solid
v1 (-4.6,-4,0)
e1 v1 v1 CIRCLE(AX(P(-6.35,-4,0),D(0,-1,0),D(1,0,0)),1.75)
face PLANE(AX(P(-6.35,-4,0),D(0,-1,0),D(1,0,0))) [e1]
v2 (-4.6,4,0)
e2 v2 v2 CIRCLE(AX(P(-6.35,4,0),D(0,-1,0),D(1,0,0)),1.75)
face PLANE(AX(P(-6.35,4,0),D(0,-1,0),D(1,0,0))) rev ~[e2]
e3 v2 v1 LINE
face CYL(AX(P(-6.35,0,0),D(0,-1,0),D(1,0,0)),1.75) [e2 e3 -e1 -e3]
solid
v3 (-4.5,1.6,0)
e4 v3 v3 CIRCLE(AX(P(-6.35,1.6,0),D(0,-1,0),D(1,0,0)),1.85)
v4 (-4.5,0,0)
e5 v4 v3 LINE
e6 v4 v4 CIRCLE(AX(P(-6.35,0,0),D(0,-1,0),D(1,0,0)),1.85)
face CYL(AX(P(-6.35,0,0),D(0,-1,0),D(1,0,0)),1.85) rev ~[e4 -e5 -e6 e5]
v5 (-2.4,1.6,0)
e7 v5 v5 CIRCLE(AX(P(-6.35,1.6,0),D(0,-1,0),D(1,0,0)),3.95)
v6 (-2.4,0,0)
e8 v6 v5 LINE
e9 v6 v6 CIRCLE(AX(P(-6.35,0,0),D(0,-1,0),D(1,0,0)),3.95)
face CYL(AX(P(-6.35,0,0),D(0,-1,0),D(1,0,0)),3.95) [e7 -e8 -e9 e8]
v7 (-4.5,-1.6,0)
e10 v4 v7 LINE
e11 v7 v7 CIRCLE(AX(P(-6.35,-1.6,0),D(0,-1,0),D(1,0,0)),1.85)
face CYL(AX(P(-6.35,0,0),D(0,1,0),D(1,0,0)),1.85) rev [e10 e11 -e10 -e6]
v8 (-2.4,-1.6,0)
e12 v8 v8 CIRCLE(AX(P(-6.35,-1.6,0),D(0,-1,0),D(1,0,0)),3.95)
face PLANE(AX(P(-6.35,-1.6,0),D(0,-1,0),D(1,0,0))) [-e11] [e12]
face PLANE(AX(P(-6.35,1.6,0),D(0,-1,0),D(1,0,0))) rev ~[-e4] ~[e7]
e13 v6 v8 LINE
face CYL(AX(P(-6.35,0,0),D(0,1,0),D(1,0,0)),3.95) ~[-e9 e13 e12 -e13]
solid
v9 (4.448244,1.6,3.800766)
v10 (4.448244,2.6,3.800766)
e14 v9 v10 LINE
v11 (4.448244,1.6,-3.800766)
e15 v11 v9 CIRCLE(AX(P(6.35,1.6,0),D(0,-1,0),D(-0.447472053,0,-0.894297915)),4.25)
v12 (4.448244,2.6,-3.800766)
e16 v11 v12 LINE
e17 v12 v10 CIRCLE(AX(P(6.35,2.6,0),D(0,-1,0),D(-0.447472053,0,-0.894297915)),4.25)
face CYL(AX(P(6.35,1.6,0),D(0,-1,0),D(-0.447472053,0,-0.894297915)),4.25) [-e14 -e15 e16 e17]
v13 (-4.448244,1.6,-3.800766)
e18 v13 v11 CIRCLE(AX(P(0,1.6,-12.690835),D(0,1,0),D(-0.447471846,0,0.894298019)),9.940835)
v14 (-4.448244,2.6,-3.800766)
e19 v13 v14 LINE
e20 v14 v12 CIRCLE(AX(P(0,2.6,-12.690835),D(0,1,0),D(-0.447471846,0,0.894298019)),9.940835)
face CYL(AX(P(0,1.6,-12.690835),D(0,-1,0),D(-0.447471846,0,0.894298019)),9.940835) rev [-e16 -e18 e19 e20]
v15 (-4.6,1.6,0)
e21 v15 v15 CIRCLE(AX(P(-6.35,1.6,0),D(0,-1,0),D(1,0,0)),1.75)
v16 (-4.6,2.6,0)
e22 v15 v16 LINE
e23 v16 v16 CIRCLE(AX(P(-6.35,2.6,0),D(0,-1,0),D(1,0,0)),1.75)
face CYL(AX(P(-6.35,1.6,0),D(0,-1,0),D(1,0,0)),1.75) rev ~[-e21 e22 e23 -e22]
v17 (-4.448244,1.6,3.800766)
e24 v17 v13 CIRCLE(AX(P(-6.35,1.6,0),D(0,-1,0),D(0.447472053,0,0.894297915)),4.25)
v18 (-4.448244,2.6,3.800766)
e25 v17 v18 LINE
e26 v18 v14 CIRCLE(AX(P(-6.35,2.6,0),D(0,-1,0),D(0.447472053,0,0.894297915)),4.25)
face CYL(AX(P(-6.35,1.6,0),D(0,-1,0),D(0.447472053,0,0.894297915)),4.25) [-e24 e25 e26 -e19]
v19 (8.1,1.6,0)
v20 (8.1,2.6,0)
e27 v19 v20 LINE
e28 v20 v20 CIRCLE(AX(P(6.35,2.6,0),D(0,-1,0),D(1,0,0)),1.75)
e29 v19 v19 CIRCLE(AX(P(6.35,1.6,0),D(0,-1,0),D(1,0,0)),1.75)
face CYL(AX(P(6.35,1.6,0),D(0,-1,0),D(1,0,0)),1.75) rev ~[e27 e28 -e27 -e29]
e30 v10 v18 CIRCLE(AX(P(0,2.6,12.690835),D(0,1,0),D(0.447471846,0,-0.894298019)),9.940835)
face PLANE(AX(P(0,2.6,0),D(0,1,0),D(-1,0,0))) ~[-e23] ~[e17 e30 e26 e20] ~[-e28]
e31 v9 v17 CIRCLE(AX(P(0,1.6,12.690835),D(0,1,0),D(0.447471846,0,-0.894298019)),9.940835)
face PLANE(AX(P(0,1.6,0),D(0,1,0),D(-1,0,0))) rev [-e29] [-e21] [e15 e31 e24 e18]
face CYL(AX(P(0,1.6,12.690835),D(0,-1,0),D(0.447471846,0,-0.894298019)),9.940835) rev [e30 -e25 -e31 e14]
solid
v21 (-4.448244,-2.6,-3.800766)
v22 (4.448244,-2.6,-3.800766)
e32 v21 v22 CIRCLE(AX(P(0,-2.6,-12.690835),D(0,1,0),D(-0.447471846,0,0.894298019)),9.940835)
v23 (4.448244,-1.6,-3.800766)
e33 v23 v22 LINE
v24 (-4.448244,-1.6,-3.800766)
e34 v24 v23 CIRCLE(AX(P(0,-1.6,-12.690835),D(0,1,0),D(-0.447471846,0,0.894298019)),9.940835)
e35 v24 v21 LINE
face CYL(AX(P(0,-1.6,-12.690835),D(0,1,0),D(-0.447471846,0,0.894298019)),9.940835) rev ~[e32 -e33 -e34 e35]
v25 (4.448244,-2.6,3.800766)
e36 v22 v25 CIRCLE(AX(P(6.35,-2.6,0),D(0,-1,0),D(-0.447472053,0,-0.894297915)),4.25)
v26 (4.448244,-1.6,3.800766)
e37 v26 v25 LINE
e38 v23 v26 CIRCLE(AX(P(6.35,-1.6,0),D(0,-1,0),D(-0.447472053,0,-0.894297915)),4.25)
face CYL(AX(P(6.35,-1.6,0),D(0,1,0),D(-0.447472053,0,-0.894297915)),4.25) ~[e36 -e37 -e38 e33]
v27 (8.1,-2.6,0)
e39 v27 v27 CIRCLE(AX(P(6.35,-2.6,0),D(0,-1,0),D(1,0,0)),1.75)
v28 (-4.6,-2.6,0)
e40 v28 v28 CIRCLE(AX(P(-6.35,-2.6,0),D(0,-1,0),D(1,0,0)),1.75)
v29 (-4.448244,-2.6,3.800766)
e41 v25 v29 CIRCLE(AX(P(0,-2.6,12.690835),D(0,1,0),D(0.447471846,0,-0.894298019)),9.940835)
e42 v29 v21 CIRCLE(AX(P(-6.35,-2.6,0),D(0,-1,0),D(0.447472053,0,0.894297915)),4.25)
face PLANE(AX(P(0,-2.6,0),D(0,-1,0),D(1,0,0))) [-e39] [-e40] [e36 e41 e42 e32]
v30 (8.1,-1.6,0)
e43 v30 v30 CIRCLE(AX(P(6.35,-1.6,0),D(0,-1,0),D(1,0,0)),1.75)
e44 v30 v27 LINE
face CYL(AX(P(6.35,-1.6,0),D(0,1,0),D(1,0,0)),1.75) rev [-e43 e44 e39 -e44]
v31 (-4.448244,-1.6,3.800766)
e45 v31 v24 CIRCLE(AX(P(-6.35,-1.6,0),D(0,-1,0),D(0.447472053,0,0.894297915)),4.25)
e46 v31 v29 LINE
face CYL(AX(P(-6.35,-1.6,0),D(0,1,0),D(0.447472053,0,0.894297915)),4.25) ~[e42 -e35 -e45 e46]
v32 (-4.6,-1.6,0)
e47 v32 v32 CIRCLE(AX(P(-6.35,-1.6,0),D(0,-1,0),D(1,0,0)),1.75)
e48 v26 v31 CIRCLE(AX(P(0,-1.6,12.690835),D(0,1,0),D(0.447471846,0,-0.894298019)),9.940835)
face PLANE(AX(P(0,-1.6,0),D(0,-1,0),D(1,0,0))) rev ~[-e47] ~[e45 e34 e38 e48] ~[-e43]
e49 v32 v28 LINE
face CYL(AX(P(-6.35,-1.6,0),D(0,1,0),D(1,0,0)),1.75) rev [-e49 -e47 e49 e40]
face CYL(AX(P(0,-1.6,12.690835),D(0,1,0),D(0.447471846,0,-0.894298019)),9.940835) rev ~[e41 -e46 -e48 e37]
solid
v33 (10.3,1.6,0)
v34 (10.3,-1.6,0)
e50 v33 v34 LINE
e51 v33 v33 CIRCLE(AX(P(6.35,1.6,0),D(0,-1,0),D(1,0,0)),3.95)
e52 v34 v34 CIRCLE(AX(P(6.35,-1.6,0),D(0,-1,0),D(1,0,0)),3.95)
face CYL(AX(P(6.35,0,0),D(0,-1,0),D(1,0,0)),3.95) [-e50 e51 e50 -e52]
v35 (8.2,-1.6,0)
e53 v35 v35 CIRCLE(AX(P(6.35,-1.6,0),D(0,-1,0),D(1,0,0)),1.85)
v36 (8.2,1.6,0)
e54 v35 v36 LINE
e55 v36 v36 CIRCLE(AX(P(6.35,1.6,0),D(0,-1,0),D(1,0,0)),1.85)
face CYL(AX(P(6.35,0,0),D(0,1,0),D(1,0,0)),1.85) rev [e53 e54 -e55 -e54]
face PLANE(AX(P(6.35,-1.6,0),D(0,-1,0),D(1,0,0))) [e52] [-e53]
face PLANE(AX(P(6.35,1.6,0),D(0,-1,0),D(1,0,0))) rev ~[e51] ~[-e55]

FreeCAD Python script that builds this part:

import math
import FreeCAD as App
import Part
import Sketcher
from FreeCAD import Vector
Q = App.Units.Quantity

doc = App.newDocument("Part")
body = doc.addObject("PartDesign::Body", "Body")
body.AllowCompound = True

sketch1 = body.newObject("Sketcher::SketchObject", "Sketch")
sketch1.AttachmentSupport = (doc.getObject("XZ_Plane"), [""])
sketch1.MapMode = "FlatFace"
sketch1.addGeometry([
    Part.Circle(Vector(-6.3, 0, 0), Vector(0, 0, 1), 4),
    Part.Circle(Vector(-6.3, 0, 0), Vector(0, 0, 1), 1.9),
    Part.Circle(Vector(6.3, 0, 0), Vector(0, 0, 1), 4),
    Part.Circle(Vector(6.3, 0, 0), Vector(0, 0, 1), 1.9),
], False)
sketch1.addConstraint([
    Sketcher.Constraint("Coincident", 1, 3, 0, 3),
    Sketcher.Constraint("Coincident", 3, 3, 2, 3),
    Sketcher.Constraint("Equal", 0, 2),
    Sketcher.Constraint("Equal", 1, 3),
    Sketcher.Constraint("Symmetric", 0, 3, 2, 3, -1, 1),
    Sketcher.Constraint("PointOnObject", 0, 3, -1),
    Sketcher.Constraint("Diameter", 0, Q("7.9 mm")),
    Sketcher.Constraint("Diameter", 1, Q("3.7 mm")),
    Sketcher.Constraint("DistanceX", 0, 3, 2, 3, Q("12.7 mm")),
])
pad1 = body.newObject("PartDesign::Pad", "Pad")
pad1.Profile = sketch1
pad1.Length = 3.2
pad1.Midplane = True
body2 = doc.addObject("PartDesign::Body", "Body001")

sketch2 = body2.newObject("Sketcher::SketchObject", "Sketch001")
sketch2.AttachmentSupport = (doc.getObject("XZ_Plane001"), [""])
sketch2.MapMode = "FlatFace"
sketch2.AttachmentOffset = App.Placement(Vector(0, 0, 1.6), App.Rotation())
sketch2.addGeometry([
    Part.ArcOfCircle(Part.Circle(Vector(0, 12.7, 0), Vector(0, 0, 1), 9.9), math.radians(-117), math.radians(-63)),
    Part.ArcOfCircle(Part.Circle(Vector(-6.4, 0, 0), Vector(0, 0, 1), 4.2), math.radians(63), math.radians(297)),
    Part.ArcOfCircle(Part.Circle(Vector(0, -12.7, 0), Vector(0, 0, 1), 9.9), math.radians(63), math.radians(117)),
    Part.ArcOfCircle(Part.Circle(Vector(6.4, 0, 0), Vector(0, 0, 1), 4.2), math.radians(-117), math.radians(117)),
    Part.Circle(Vector(-6.3, 0, 0), Vector(0, 0, 1), 1.8),
    Part.Circle(Vector(6.3, 0, 0), Vector(0, 0, 1), 1.8),
], False)
sketch2.addConstraint([
    Sketcher.Constraint("Tangent", 0, 1, 1, 1),
    Sketcher.Constraint("Tangent", 1, 2, 2, 2),
    Sketcher.Constraint("Tangent", 2, 1, 3, 1),
    Sketcher.Constraint("Tangent", 3, 2, 0, 2),
    Sketcher.Constraint("Coincident", 4, 3, 1, 3),
    Sketcher.Constraint("Coincident", 5, 3, 3, 3),
    Sketcher.Constraint("Equal", 0, 2),
    Sketcher.Constraint("Equal", 1, 3),
    Sketcher.Constraint("Equal", 4, 5),
    Sketcher.Constraint("Symmetric", 0, 3, 2, 3, -1, 1),
    Sketcher.Constraint("PointOnObject", 0, 3, -2),
    Sketcher.Constraint("Diameter", 4, Q("3.5 mm")),
    Sketcher.Constraint("Radius", 1, Q("4.25 mm")),
    Sketcher.Constraint("DistanceX", 1, 3, 3, 3, Q("12.7 mm")),
    Sketcher.Constraint("Radius", 0, Q("9.940835 mm")),
])
pad2 = body2.newObject("PartDesign::Pad", "Pad001")
pad2.Profile = sketch2
pad2.Length = 1
body3 = doc.addObject("PartDesign::Body", "Body002")
doc.recompute()

mirroring = doc.addObject("Part::Mirroring", "Mirroring")
mirroring.Source = body2
mirroring.Base = Vector(0, 0, 0)
mirroring.Normal = Vector(0, -1, 0)
body3.BaseFeature = mirroring
doc.recompute()
body4 = doc.addObject("PartDesign::Body", "Body003")

sketch3 = body4.newObject("Sketcher::SketchObject", "Sketch002")
sketch3.AttachmentSupport = (doc.getObject("XZ_Plane003"), [""])
sketch3.MapMode = "FlatFace"
sketch3.addGeometry(Part.Circle(Vector(-6.3, 0, 0), Vector(0, 0, 1), 1.8), False)
sketch3.addConstraint([
    Sketcher.Constraint("PointOnObject", 0, 3, -1),
    Sketcher.Constraint("Diameter", 0, Q("3.5 mm")),
    Sketcher.Constraint("DistanceX", 0, 3, -1, 1, Q("6.35 mm")),
])
pad3 = body4.newObject("PartDesign::Pad", "Pad002")
pad3.Profile = sketch3
pad3.Length = 8
pad3.Midplane = True
mirroring.Visibility = False

doc.recompute()
